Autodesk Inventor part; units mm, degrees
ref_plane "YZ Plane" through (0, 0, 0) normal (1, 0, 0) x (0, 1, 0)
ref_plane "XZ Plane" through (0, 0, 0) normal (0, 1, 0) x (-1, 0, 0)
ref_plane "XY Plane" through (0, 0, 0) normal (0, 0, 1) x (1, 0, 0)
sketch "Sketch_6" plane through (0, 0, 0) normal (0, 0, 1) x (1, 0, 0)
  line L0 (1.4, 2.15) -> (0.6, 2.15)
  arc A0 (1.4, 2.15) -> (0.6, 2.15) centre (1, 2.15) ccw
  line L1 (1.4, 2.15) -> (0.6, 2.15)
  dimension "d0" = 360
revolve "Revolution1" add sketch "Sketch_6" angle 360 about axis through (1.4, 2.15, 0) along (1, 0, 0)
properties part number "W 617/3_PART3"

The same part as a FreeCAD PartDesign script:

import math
import FreeCAD as App
import Part
import Sketcher
from FreeCAD import Vector

doc = App.newDocument("Part")
body = doc.addObject("PartDesign::Body", "Body")

sketch1 = body.newObject("Sketcher::SketchObject", "Sketch")
sketch1.AttachmentSupport = (doc.getObject("XY_Plane"), [""])
sketch1.MapMode = "FlatFace"
sketch1.addGeometry([
    Part.LineSegment(Vector(0.6, 2.15, 0), Vector(1.4, 2.15, 0)),
    Part.ArcOfCircle(Part.Circle(Vector(1, 2.15, 0), Vector(0, 0, 1), 0.4), math.radians(0), math.radians(180)),
], False)
sketch1.addGeometry(Part.LineSegment(Vector(0.6, 2.15, 0), Vector(1.4, 2.15, 0)), True)
sketch1.addConstraint([
    Sketcher.Constraint("Coincident", 0, 1, 1, 2),
    Sketcher.Constraint("Coincident", 1, 1, 0, 2),
    Sketcher.Constraint("Horizontal", 0),
    Sketcher.Constraint("Horizontal", 2),
    Sketcher.Constraint("Coincident", 2, 1, 0, 1),
    Sketcher.Constraint("Horizontal", 1, 3, 0, 1),
    Sketcher.Constraint("Equal", 0, 2),
    Sketcher.Constraint("Radius", 1, 0.4),
    Sketcher.Constraint("DistanceX", -1, 1, 1, 3, 1.0),
    Sketcher.Constraint("DistanceY", -1, 1, 1, 3, 2.15),
])
revolution = body.newObject("PartDesign::Revolution", "Revolution")
revolution.Profile = sketch1
revolution.ReferenceAxis = (sketch1, ["Axis0"])
revolution.Angle = 360

doc.recompute()
